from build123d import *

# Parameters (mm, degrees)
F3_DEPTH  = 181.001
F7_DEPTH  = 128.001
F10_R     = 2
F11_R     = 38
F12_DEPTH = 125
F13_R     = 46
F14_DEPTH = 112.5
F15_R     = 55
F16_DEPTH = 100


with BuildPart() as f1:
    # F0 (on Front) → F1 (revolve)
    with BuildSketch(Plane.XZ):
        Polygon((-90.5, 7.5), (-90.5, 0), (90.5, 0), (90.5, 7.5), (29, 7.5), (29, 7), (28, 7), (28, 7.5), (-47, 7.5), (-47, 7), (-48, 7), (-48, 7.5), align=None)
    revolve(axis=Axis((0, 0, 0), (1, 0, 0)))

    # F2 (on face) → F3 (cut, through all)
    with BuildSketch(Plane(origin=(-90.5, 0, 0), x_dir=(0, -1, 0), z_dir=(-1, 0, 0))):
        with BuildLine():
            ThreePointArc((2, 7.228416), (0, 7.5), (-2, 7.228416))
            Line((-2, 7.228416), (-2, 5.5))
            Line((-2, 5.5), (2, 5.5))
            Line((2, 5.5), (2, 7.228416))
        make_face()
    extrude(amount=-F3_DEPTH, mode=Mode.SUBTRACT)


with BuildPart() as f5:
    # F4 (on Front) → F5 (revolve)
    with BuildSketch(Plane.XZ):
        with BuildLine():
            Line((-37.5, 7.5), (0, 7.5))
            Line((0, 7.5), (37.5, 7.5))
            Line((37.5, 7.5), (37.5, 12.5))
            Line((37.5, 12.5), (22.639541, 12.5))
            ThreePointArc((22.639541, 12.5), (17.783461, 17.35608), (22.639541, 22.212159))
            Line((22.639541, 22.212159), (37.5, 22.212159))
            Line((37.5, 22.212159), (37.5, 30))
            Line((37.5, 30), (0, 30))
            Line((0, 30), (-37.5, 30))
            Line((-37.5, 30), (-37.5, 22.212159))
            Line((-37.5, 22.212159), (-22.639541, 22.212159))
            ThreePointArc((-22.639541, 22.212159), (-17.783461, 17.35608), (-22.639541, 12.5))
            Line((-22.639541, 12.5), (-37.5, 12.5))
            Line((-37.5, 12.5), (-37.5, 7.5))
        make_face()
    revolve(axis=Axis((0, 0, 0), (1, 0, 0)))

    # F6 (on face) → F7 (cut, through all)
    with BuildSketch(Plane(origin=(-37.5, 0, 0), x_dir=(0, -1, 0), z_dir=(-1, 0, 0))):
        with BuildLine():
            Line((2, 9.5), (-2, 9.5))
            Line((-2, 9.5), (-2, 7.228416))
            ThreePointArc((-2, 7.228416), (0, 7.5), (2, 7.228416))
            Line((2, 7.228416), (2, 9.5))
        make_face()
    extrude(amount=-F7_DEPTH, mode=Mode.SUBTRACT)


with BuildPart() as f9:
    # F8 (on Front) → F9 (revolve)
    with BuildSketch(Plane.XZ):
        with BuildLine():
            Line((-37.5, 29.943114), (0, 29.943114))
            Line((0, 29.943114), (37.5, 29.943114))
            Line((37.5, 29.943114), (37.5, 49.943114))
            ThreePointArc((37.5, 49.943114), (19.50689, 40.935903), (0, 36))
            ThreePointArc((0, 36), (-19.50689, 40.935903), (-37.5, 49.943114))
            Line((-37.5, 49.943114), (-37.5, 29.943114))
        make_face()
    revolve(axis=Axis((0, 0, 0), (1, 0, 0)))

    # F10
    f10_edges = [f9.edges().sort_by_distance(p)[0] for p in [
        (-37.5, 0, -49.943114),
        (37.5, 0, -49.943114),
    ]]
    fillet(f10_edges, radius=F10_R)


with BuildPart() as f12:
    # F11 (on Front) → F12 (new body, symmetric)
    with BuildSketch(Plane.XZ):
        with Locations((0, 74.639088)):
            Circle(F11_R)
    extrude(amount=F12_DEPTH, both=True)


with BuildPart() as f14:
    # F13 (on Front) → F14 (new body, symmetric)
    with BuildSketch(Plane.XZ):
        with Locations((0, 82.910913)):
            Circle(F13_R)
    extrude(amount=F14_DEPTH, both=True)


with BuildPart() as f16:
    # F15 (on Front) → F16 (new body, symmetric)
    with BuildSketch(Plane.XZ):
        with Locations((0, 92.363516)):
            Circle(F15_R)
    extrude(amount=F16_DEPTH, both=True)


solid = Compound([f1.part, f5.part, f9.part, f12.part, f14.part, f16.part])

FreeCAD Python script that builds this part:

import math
import FreeCAD as App
import Part
import Sketcher

V = App.Vector


def edges_at(feature, points):
    """Names of the edges that pass closest to the given points."""
    edges = feature.Shape.Edges
    near = lambda p: min(range(len(edges)), key=lambda i: edges[i].distToShape(Part.Vertex(*p))[0])
    return sorted({f"Edge{near(p) + 1}" for p in points})


def add_polygon(sketch, points):
    """Adds a closed chain of lines whose ends are joined by coincident constraints."""
    first, n = sketch.GeometryCount, len(points)
    for a, b in zip(points, points[1:] + points[:1]):
        sketch.addGeometry(Part.LineSegment(App.Vector(*a, 0), App.Vector(*b, 0)), False)
    for i in range(n):
        sketch.addConstraint(Sketcher.Constraint("Coincident", first + i, 2, first + (i + 1) % n, 1))

doc = App.newDocument("Part")
body = doc.addObject("PartDesign::Body", "Body")

# Sketch on XZ plane
sketch1 = body.newObject("Sketcher::SketchObject", "Sketch")
sketch1.AttachmentSupport = (doc.getObject("XZ_Plane"), [""])
sketch1.MapMode = "FlatFace"
add_polygon(sketch1, [(-90.5, 7.5), (-90.5, 0), (90.5, 0), (90.5, 7.5), (29, 7.5), (29, 7), (28, 7), (28, 7.5), (-47, 7.5), (-47, 7), (-48, 7), (-48, 7.5)])  # lines 0-11
sketch1.addConstraint(Sketcher.Constraint("Vertical", 0))
sketch1.addConstraint(Sketcher.Constraint("Horizontal", 1))
sketch1.addConstraint(Sketcher.Constraint("Vertical", 2))
sketch1.addConstraint(Sketcher.Constraint("Horizontal", 3))
sketch1.addConstraint(Sketcher.Constraint("Vertical", 4))
sketch1.addConstraint(Sketcher.Constraint("Horizontal", 5))
sketch1.addConstraint(Sketcher.Constraint("Vertical", 6))
sketch1.addConstraint(Sketcher.Constraint("Horizontal", 7))
sketch1.addConstraint(Sketcher.Constraint("Vertical", 8))
sketch1.addConstraint(Sketcher.Constraint("Horizontal", 9))
sketch1.addConstraint(Sketcher.Constraint("Vertical", 10))
sketch1.addConstraint(Sketcher.Constraint("Horizontal", 11))
sketch1.addConstraint(Sketcher.Constraint("Symmetric", 0, 2, 1, 2, -1, 1))
sketch1.addConstraint(Sketcher.Constraint("Horizontal", 3, 2, 6, 2))
sketch1.addConstraint(Sketcher.Constraint("Horizontal", 5, 2, 8, 2))
sketch1.addConstraint(Sketcher.Constraint("Horizontal", 7, 2, 10, 2))
sketch1.addConstraint(Sketcher.Constraint("Equal", 5, 9))
sketch1.addConstraint(Sketcher.Constraint("DistanceX", 1, 1, 1, 2, 181.0))
sketch1.addConstraint(Sketcher.Constraint("DistanceX", 5, 2, 5, 1, 1.0))
sketch1.addConstraint(Sketcher.Constraint("DistanceX", 7, 2, 7, 1, 75.0))
sketch1.addConstraint(Sketcher.Constraint("DistanceX", 3, 2, 3, 1, 61.5))
sketch1.addConstraint(Sketcher.Constraint("DistanceY", 0, 2, 0, 1, 7.5))
sketch1.addConstraint(Sketcher.Constraint("DistanceY", 4, 2, 4, 1, 0.5))
revolution = body.newObject("PartDesign::Revolution", "Revolution")
revolution.Profile = sketch1
revolution.ReferenceAxis = (sketch1, ["H_Axis"])
revolution.Angle = 360

# Sketch on YZ plane
sketch2 = body.newObject("Sketcher::SketchObject", "Sketch001")
sketch2.AttachmentSupport = (doc.getObject("YZ_Plane"), [""])
sketch2.MapMode = "FlatFace"
sketch2.AttachmentOffset = App.Placement(V(0, 0, -90.5), App.Rotation())
sketch2.addGeometry(Part.ArcOfCircle(Part.Circle(V(0, 0, 0), V(0, 0, 1), 7.5), math.radians(75), math.radians(105)), False)
sketch2.addGeometry(Part.LineSegment(V(2, 7.2, 0), V(2, 5.5, 0)), False)
sketch2.addGeometry(Part.LineSegment(V(2, 5.5, 0), V(-2, 5.5, 0)), False)
sketch2.addGeometry(Part.LineSegment(V(-2, 5.5, 0), V(-2, 7.2, 0)), False)
sketch2.addConstraint(Sketcher.Constraint("Coincident", 0, 1, 1, 1))
sketch2.addConstraint(Sketcher.Constraint("Coincident", 1, 2, 2, 1))
sketch2.addConstraint(Sketcher.Constraint("Coincident", 2, 2, 3, 1))
sketch2.addConstraint(Sketcher.Constraint("Coincident", 3, 2, 0, 2))
sketch2.addConstraint(Sketcher.Constraint("Vertical", 1))
sketch2.addConstraint(Sketcher.Constraint("Horizontal", 2))
sketch2.addConstraint(Sketcher.Constraint("Vertical", 3))
sketch2.addConstraint(Sketcher.Constraint("Coincident", 0, 3, -1, 1))
sketch2.addConstraint(Sketcher.Constraint("Horizontal", 0, 1, 3, 2))
sketch2.addConstraint(Sketcher.Constraint("DistanceX", 2, 2, 2, 1, 4.0))
sketch2.addConstraint(Sketcher.Constraint("DistanceY", -1, 1, 1, 2, 5.5))
sketch2.addConstraint(Sketcher.Constraint("Radius", 0, 7.499996))
pocket1 = body.newObject("PartDesign::Pocket", "Pocket")
pocket1.Profile = sketch2
pocket1.Type = "ThroughAll"
pocket1.Reversed = True
body2 = doc.addObject("PartDesign::Body", "Body001")

# Sketch on XZ plane
sketch3 = body2.newObject("Sketcher::SketchObject", "Sketch002")
sketch3.AttachmentSupport = (doc.getObject("XZ_Plane001"), [""])
sketch3.MapMode = "FlatFace"
sketch3.addGeometry(Part.LineSegment(V(-37.5, 7.5, 0), V(37.5, 7.5, 0)), False)
sketch3.addGeometry(Part.LineSegment(V(37.5, 7.5, 0), V(37.5, 12.5, 0)), False)
sketch3.addGeometry(Part.LineSegment(V(37.5, 12.5, 0), V(22.6, 12.5, 0)), False)
sketch3.addGeometry(Part.ArcOfCircle(Part.Circle(V(22.6, 17.4, 0), V(0, 0, 1), 4.9), math.radians(90), math.radians(270)), False)
sketch3.addGeometry(Part.LineSegment(V(22.6, 22.2, 0), V(37.5, 22.2, 0)), False)
sketch3.addGeometry(Part.LineSegment(V(37.5, 22.2, 0), V(37.5, 30, 0)), False)
sketch3.addGeometry(Part.LineSegment(V(37.5, 30, 0), V(-37.5, 30, 0)), False)
sketch3.addGeometry(Part.LineSegment(V(-37.5, 30, 0), V(-37.5, 22.2, 0)), False)
sketch3.addGeometry(Part.LineSegment(V(-37.5, 22.2, 0), V(-22.6, 22.2, 0)), False)
sketch3.addGeometry(Part.ArcOfCircle(Part.Circle(V(-22.6, 17.4, 0), V(0, 0, 1), 4.9), math.radians(-90), math.radians(90)), False)
sketch3.addGeometry(Part.LineSegment(V(-22.6, 12.5, 0), V(-37.5, 12.5, 0)), False)
sketch3.addGeometry(Part.LineSegment(V(-37.5, 12.5, 0), V(-37.5, 7.5, 0)), False)
sketch3.addConstraint(Sketcher.Constraint("Coincident", 0, 2, 1, 1))
sketch3.addConstraint(Sketcher.Constraint("Coincident", 1, 2, 2, 1))
sketch3.addConstraint(Sketcher.Constraint("Tangent", 2, 2, 3, 2))
sketch3.addConstraint(Sketcher.Constraint("Tangent", 3, 1, 4, 1))
sketch3.addConstraint(Sketcher.Constraint("Coincident", 4, 2, 5, 1))
sketch3.addConstraint(Sketcher.Constraint("Coincident", 5, 2, 6, 1))
sketch3.addConstraint(Sketcher.Constraint("Coincident", 6, 2, 7, 1))
sketch3.addConstraint(Sketcher.Constraint("Coincident", 7, 2, 8, 1))
sketch3.addConstraint(Sketcher.Constraint("Tangent", 8, 2, 9, 2))
sketch3.addConstraint(Sketcher.Constraint("Tangent", 9, 1, 10, 1))
sketch3.addConstraint(Sketcher.Constraint("Coincident", 10, 2, 11, 1))
sketch3.addConstraint(Sketcher.Constraint("Coincident", 11, 2, 0, 1))
sketch3.addConstraint(Sketcher.Constraint("Horizontal", 0))
sketch3.addConstraint(Sketcher.Constraint("Vertical", 1))
sketch3.addConstraint(Sketcher.Constraint("Horizontal", 2))
sketch3.addConstraint(Sketcher.Constraint("Horizontal", 4))
sketch3.addConstraint(Sketcher.Constraint("Vertical", 5))
sketch3.addConstraint(Sketcher.Constraint("Horizontal", 6))
sketch3.addConstraint(Sketcher.Constraint("Vertical", 7))
sketch3.addConstraint(Sketcher.Constraint("Horizontal", 8))
sketch3.addConstraint(Sketcher.Constraint("Horizontal", 10))
sketch3.addConstraint(Sketcher.Constraint("Vertical", 11))
sketch3.addConstraint(Sketcher.Constraint("Equal", 3, 9))
sketch3.addConstraint(Sketcher.Constraint("Symmetric", 3, 3, 9, 3, -2))
sketch3.addConstraint(Sketcher.Constraint("Vertical", 1, 2, 4, 2))
sketch3.addConstraint(Sketcher.Constraint("Vertical", 7, 2, 10, 2))
sketch3.addConstraint(Sketcher.Constraint("Equal", 4, 8))
sketch3.addConstraint(Sketcher.Constraint("DistanceX", 0, 1, 0, 2, 75.0))
sketch3.addConstraint(Sketcher.Constraint("DistanceY", 1, 1, 1, 2, 5.0))
sketch3.addConstraint(Sketcher.Constraint("DistanceY", -1, 1, 5, 2, 30.0))
sketch3.addConstraint(Sketcher.Constraint("DistanceY", -1, 1, 0, 2, 7.5))
sketch3.addConstraint(Sketcher.Constraint("Radius", 3, 4.856079))
sketch3.addConstraint(Sketcher.Constraint("DistanceX", 2, 2, 2, 1, 14.860459))
revolution2 = body2.newObject("PartDesign::Revolution", "Revolution001")
revolution2.Profile = sketch3
revolution2.ReferenceAxis = (sketch3, ["H_Axis"])
revolution2.Angle = 360

# Sketch on YZ plane
sketch4 = body2.newObject("Sketcher::SketchObject", "Sketch003")
sketch4.AttachmentSupport = (doc.getObject("YZ_Plane001"), [""])
sketch4.MapMode = "FlatFace"
sketch4.AttachmentOffset = App.Placement(V(0, 0, -37.5), App.Rotation())
sketch4.addGeometry(Part.LineSegment(V(-2, 9.5, 0), V(2, 9.5, 0)), False)
sketch4.addGeometry(Part.LineSegment(V(2, 9.5, 0), V(2, 7.2, 0)), False)
sketch4.addGeometry(Part.ArcOfCircle(Part.Circle(V(0, 0, 0), V(0, 0, 1), 7.5), math.radians(75), math.radians(105)), False)
sketch4.addGeometry(Part.LineSegment(V(-2, 7.2, 0), V(-2, 9.5, 0)), False)
sketch4.addConstraint(Sketcher.Constraint("Coincident", 0, 2, 1, 1))
sketch4.addConstraint(Sketcher.Constraint("Coincident", 1, 2, 2, 1))
sketch4.addConstraint(Sketcher.Constraint("Coincident", 2, 2, 3, 1))
sketch4.addConstraint(Sketcher.Constraint("Coincident", 3, 2, 0, 1))
sketch4.addConstraint(Sketcher.Constraint("Horizontal", 0))
sketch4.addConstraint(Sketcher.Constraint("Vertical", 1))
sketch4.addConstraint(Sketcher.Constraint("Vertical", 3))
sketch4.addConstraint(Sketcher.Constraint("Coincident", 2, 3, -1, 1))
sketch4.addConstraint(Sketcher.Constraint("Horizontal", 1, 2, 2, 2))
sketch4.addConstraint(Sketcher.Constraint("DistanceX", 0, 1, 0, 2, 4.0))
sketch4.addConstraint(Sketcher.Constraint("DistanceY", -1, 1, 0, 2, 9.5))
sketch4.addConstraint(Sketcher.Constraint("Radius", 2, 7.499996))
pocket2 = body2.newObject("PartDesign::Pocket", "Pocket001")
pocket2.Profile = sketch4
pocket2.Type = "ThroughAll"
pocket2.Reversed = True
body3 = doc.addObject("PartDesign::Body", "Body002")

# Sketch on XZ plane
sketch5 = body3.newObject("Sketcher::SketchObject", "Sketch004")
sketch5.AttachmentSupport = (doc.getObject("XZ_Plane002"), [""])
sketch5.MapMode = "FlatFace"
sketch5.addGeometry(Part.LineSegment(V(-38, 30, 0), V(38, 30, 0)), False)
sketch5.addGeometry(Part.LineSegment(V(38, 30, 0), V(38, 50, 0)), False)
sketch5.addGeometry(Part.ArcOfCircle(Part.Circle(V(-13, 128, 0), V(0, 0, 1), 93), math.radians(-82), math.radians(-57)), False)
sketch5.addGeometry(Part.ArcOfCircle(Part.Circle(V(13, 128, 0), V(0, 0, 1), 93), math.radians(-123), math.radians(-98)), False)
sketch5.addGeometry(Part.LineSegment(V(-38, 50, 0), V(-38, 30, 0)), False)
sketch5.addConstraint(Sketcher.Constraint("Coincident", 0, 2, 1, 1))
sketch5.addConstraint(Sketcher.Constraint("Coincident", 1, 2, 2, 2))
sketch5.addConstraint(Sketcher.Constraint("Coincident", 2, 1, 3, 2))
sketch5.addConstraint(Sketcher.Constraint("Coincident", 3, 1, 4, 1))
sketch5.addConstraint(Sketcher.Constraint("Coincident", 4, 2, 0, 1))
sketch5.addConstraint(Sketcher.Constraint("Horizontal", 0))
sketch5.addConstraint(Sketcher.Constraint("Vertical", 1))
sketch5.addConstraint(Sketcher.Constraint("Vertical", 4))
sketch5.addConstraint(Sketcher.Constraint("Equal", 2, 3))
sketch5.addConstraint(Sketcher.Constraint("Symmetric", 2, 3, 3, 3, -2))
sketch5.addConstraint(Sketcher.Constraint("Horizontal", 1, 2, 3, 1))
sketch5.addConstraint(Sketcher.Constraint("DistanceX", 0, 1, 0, 2, 75.0))
sketch5.addConstraint(Sketcher.Constraint("DistanceY", 1, 1, 1, 2, 20.0))
sketch5.addConstraint(Sketcher.Constraint("DistanceY", -1, 1, 2, 1, 36.0))
sketch5.addConstraint(Sketcher.Constraint("Radius", 2, 93.212897))
sketch5.addConstraint(Sketcher.Constraint("DistanceX", 2, 3, -1, 1, 12.978358))
revolution3 = body3.newObject("PartDesign::Revolution", "Revolution002")
revolution3.Profile = sketch5
revolution3.ReferenceAxis = (sketch5, ["H_Axis"])
revolution3.Angle = 360
doc.recompute()

fillet = body3.newObject("PartDesign::Fillet", "Fillet")
fillet.Base = (revolution3, edges_at(revolution3, [(-37.5, 0, -49.943), (37.5, 0, -49.943)]))
fillet.Radius = 2
body4 = doc.addObject("PartDesign::Body", "Body003")

# Sketch on XZ plane
sketch6 = body4.newObject("Sketcher::SketchObject", "Sketch005")
sketch6.AttachmentSupport = (doc.getObject("XZ_Plane003"), [""])
sketch6.MapMode = "FlatFace"
sketch6.addGeometry(Part.Circle(V(0, 75, 0), V(0, 0, 1), 38), False)
sketch6.addConstraint(Sketcher.Constraint("PointOnObject", 0, 3, -2))
sketch6.addConstraint(Sketcher.Constraint("Diameter", 0, 76.0))
sketch6.addConstraint(Sketcher.Constraint("DistanceY", -1, 1, 0, 3, 74.639088))
pad1 = body4.newObject("PartDesign::Pad", "Pad")
pad1.Profile = sketch6
pad1.Length = 250
pad1.Midplane = True
body5 = doc.addObject("PartDesign::Body", "Body004")

# Sketch on XZ plane
sketch7 = body5.newObject("Sketcher::SketchObject", "Sketch006")
sketch7.AttachmentSupport = (doc.getObject("XZ_Plane004"), [""])
sketch7.MapMode = "FlatFace"
sketch7.addGeometry(Part.Circle(V(0, 83, 0), V(0, 0, 1), 46), False)
sketch7.addConstraint(Sketcher.Constraint("PointOnObject", 0, 3, -2))
sketch7.addConstraint(Sketcher.Constraint("Diameter", 0, 92.0))
sketch7.addConstraint(Sketcher.Constraint("DistanceY", -1, 1, 0, 3, 82.910913))
pad2 = body5.newObject("PartDesign::Pad", "Pad001")
pad2.Profile = sketch7
pad2.Length = 225
pad2.Midplane = True
body6 = doc.addObject("PartDesign::Body", "Body005")

# Sketch on XZ plane
sketch8 = body6.newObject("Sketcher::SketchObject", "Sketch007")
sketch8.AttachmentSupport = (doc.getObject("XZ_Plane005"), [""])
sketch8.MapMode = "FlatFace"
sketch8.addGeometry(Part.Circle(V(0, 92, 0), V(0, 0, 1), 55), False)
sketch8.addConstraint(Sketcher.Constraint("PointOnObject", 0, 3, -2))
sketch8.addConstraint(Sketcher.Constraint("Diameter", 0, 110.0))
sketch8.addConstraint(Sketcher.Constraint("DistanceY", -1, 1, 0, 3, 92.363516))
pad3 = body6.newObject("PartDesign::Pad", "Pad002")
pad3.Profile = sketch8
pad3.Length = 200
pad3.Midplane = True

doc.recompute()
